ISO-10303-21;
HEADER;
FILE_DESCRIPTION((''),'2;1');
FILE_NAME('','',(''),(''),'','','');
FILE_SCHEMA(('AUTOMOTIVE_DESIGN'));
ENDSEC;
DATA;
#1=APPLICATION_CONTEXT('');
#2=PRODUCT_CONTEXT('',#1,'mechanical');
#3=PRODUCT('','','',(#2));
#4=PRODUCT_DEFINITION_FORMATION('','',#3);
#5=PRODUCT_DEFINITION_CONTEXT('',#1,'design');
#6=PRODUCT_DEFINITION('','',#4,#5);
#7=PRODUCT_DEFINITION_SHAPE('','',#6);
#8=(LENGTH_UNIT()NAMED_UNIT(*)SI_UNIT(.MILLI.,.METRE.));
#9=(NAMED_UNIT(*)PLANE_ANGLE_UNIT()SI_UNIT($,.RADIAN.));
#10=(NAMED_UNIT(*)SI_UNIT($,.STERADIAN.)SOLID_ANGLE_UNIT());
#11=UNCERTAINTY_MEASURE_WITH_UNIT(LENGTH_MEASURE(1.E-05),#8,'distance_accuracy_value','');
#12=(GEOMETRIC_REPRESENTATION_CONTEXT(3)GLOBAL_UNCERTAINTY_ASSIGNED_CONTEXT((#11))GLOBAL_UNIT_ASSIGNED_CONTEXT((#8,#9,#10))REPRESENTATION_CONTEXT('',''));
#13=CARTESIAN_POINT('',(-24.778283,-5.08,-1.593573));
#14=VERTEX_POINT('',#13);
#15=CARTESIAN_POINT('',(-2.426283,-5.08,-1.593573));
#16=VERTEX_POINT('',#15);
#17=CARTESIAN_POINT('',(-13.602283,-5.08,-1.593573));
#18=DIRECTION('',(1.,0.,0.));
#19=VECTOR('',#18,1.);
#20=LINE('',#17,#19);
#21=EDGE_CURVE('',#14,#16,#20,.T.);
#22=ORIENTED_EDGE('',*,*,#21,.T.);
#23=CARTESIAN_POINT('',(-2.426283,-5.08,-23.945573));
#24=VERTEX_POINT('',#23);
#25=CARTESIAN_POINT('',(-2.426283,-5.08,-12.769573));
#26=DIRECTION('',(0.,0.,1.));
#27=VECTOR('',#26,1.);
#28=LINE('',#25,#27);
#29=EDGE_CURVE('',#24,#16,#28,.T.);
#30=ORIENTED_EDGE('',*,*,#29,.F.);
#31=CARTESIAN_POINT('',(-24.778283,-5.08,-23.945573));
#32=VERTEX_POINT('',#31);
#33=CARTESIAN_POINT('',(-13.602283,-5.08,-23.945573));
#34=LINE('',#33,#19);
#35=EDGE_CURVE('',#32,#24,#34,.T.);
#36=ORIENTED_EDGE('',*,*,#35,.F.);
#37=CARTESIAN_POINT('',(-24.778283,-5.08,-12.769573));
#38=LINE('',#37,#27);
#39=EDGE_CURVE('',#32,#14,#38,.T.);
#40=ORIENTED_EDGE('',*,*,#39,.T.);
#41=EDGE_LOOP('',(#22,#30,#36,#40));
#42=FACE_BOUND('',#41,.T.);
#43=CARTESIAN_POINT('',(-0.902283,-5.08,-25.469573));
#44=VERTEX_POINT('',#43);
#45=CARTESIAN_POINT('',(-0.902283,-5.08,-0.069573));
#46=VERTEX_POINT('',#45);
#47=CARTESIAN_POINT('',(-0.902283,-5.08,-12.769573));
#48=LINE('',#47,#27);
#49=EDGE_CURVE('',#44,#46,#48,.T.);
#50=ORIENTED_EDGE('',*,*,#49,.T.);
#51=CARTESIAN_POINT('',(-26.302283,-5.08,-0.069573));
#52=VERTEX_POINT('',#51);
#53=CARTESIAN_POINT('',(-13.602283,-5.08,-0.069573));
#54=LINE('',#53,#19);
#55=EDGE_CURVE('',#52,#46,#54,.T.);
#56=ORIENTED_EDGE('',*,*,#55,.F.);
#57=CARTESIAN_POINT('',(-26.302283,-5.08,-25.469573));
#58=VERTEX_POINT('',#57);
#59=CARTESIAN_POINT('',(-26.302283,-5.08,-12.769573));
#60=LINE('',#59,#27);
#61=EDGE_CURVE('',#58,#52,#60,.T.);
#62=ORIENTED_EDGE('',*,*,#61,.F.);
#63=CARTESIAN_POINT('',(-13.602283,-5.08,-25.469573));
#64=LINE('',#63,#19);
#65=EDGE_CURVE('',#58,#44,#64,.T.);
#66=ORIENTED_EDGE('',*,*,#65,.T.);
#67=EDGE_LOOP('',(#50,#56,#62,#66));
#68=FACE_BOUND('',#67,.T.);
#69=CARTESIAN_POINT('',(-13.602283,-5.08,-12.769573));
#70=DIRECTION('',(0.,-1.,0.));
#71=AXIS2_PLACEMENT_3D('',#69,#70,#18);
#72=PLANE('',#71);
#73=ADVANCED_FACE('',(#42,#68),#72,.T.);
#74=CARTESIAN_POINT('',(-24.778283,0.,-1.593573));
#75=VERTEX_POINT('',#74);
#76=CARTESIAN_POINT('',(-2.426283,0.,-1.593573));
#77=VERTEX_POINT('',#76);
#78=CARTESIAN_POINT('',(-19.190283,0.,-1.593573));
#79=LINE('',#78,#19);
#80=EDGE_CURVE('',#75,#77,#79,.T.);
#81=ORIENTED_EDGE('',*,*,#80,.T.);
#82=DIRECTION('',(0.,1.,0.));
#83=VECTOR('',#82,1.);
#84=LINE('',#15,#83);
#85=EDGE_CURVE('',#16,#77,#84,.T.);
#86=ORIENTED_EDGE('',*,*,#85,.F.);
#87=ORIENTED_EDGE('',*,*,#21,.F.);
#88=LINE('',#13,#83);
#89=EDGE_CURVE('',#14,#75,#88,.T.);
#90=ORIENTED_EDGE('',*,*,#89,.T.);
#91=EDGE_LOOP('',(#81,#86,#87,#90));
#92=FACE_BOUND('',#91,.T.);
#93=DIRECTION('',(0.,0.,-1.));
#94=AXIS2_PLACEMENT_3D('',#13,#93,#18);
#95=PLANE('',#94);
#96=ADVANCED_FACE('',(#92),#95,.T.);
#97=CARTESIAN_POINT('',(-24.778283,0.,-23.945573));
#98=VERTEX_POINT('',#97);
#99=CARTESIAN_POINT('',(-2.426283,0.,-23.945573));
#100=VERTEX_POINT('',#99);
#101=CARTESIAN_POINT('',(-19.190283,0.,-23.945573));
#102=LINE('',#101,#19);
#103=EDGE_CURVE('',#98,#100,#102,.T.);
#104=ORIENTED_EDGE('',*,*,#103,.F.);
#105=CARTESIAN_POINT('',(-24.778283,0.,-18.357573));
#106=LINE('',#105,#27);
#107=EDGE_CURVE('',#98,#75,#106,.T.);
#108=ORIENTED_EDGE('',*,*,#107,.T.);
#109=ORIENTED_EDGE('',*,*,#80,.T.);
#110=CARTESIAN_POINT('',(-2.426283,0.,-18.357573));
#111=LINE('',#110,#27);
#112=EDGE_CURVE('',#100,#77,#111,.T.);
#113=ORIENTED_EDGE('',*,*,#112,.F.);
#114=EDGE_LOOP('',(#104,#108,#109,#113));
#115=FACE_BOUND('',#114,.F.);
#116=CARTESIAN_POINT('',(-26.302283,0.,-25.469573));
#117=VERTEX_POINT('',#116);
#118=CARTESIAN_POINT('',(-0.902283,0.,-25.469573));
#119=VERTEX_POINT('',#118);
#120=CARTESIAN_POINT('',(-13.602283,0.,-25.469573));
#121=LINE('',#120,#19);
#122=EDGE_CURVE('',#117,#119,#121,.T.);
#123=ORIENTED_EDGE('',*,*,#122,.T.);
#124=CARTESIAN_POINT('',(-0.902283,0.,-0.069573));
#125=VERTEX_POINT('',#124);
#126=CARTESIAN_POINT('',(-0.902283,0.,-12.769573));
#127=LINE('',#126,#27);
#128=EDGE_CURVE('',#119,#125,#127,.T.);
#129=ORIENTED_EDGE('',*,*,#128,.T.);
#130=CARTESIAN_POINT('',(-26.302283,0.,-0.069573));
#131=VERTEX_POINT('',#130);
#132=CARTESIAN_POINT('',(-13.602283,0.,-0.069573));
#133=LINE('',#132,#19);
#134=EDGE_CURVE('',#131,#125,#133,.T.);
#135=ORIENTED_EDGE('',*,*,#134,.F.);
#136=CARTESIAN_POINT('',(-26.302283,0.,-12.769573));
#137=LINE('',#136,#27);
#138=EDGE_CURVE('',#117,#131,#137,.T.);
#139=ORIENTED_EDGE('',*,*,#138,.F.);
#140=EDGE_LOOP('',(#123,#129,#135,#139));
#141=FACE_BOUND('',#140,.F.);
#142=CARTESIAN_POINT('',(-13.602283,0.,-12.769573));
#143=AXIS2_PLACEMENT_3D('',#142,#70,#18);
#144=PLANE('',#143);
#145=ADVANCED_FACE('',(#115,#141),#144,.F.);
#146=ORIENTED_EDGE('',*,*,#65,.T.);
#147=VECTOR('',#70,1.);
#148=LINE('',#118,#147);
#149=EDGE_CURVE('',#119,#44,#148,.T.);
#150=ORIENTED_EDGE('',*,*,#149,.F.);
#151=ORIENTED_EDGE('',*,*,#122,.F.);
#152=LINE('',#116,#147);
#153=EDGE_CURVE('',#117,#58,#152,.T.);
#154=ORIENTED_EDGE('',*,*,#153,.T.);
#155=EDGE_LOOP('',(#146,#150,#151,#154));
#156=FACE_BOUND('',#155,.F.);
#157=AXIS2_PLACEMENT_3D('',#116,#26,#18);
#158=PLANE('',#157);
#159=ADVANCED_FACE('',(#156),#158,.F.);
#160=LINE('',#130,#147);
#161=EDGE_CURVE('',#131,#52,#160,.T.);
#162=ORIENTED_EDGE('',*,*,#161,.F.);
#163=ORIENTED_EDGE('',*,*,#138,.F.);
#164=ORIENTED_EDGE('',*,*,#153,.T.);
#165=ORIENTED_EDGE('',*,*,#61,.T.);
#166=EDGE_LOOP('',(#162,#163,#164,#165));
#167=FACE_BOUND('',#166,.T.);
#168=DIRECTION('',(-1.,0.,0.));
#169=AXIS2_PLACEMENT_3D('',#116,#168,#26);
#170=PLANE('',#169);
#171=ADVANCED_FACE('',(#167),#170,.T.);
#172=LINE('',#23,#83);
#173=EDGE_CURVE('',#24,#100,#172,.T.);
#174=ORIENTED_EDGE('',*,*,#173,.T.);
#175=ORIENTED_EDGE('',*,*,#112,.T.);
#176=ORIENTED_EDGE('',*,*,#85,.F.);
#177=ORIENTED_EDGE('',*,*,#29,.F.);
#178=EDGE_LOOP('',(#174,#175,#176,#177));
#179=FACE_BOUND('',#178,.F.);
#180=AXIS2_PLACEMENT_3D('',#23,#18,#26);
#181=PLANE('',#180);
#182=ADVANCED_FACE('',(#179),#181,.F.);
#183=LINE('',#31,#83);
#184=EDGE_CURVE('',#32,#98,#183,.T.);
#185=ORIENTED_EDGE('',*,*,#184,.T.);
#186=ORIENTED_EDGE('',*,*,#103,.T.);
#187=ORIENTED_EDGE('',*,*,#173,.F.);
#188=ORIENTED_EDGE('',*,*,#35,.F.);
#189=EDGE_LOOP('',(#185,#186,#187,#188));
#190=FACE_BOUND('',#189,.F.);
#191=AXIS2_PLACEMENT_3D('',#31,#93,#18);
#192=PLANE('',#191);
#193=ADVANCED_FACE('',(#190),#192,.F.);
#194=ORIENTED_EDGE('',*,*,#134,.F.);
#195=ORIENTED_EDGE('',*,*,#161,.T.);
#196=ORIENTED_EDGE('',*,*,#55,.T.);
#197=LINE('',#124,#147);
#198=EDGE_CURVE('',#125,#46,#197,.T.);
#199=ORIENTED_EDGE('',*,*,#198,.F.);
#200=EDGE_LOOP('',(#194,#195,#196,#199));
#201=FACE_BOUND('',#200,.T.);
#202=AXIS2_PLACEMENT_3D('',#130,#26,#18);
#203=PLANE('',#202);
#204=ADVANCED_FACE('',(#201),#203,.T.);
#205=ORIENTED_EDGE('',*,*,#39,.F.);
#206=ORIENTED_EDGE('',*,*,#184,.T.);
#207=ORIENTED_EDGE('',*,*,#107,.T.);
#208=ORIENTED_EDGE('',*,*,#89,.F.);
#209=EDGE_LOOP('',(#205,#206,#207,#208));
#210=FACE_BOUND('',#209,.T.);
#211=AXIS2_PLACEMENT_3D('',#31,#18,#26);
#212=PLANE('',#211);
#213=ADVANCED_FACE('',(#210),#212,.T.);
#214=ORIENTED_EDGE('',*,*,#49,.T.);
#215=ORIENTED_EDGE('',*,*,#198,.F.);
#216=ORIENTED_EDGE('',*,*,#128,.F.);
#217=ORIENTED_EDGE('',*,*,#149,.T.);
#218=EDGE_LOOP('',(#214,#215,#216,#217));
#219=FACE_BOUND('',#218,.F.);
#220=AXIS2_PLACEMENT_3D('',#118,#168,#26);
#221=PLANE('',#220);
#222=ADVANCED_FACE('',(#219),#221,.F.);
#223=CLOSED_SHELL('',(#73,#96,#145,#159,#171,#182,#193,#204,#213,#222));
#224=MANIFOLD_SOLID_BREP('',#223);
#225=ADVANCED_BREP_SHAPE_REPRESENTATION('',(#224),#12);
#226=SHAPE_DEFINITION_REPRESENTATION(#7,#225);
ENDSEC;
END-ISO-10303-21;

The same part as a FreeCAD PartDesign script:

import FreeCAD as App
import Part
import Sketcher

V = App.Vector
Q = App.Units.Quantity

doc = App.newDocument("Part")
params = doc.addObject("Spreadsheet::Sheet", "Params")
for row, (alias, value) in enumerate([
    ("sketch1_width", "1 in"),
    ("pad1_length", "0.2 in"),
    ("sketch2_width", "0.88 in"),
    ("pocket1_length", "1 in"),
    ("pocket2_length", "1 in"),
], start=1):
    params.set(f"A{row}", alias)
    params.set(f"B{row}", "=" + value)
    params.setAlias(f"B{row}", alias)

body = doc.addObject("PartDesign::Body", "Body")

# Sketch on XZ plane
sketch1 = body.newObject("Sketcher::SketchObject", "Sketch")
sketch1.AttachmentSupport = (doc.getObject("XZ_Plane"), [""])
sketch1.MapMode = "FlatFace"
sketch1.addGeometry([
    Part.LineSegment(V(-26, 0, 0), V(-26, -25, 0)),
    Part.LineSegment(V(-26, -25, 0), V(-1, -25, 0)),
    Part.LineSegment(V(-1, -25, 0), V(-1, 0, 0)),
    Part.LineSegment(V(-1, 0, 0), V(-26, 0, 0)),
], False)
sketch1.addConstraint([
    Sketcher.Constraint("Coincident", 0, 2, 1, 1),
    Sketcher.Constraint("Coincident", 1, 2, 2, 1),
    Sketcher.Constraint("Coincident", 2, 2, 3, 1),
    Sketcher.Constraint("Coincident", 3, 2, 0, 1),
    Sketcher.Constraint("Vertical", 0),
    Sketcher.Constraint("Horizontal", 1),
    Sketcher.Constraint("Vertical", 2),
    Sketcher.Constraint("Horizontal", 3),
    Sketcher.Constraint("Equal", 3, 0),
    Sketcher.Constraint("DistanceX", 1, 1, 1, 2, Q("1 in")),
    Sketcher.Constraint("DistanceX", 0, 2, -1, 1, 26.302283),
    Sketcher.Constraint("DistanceY", 0, 2, -1, 1, 25.469573),
])
sketch1.setExpression("Constraints[9]", "Params.sketch1_width")
pad1 = body.newObject("PartDesign::Pad", "Pad")
pad1.Profile = sketch1
pad1.setExpression("Length", "Params.pad1_length")

# Sketch on XZ plane
sketch2 = body.newObject("Sketcher::SketchObject", "Sketch001")
sketch2.AttachmentSupport = (doc.getObject("XZ_Plane"), [""])
sketch2.MapMode = "FlatFace"
sketch2.AttachmentOffset = App.Placement(V(0, 0, 0.2 * 25.4), App.Rotation())
sketch2.addGeometry([
    Part.LineSegment(V(-25, -2, 0), V(-25, -24, 0)),
    Part.LineSegment(V(-25, -24, 0), V(-2, -24, 0)),
    Part.LineSegment(V(-2, -24, 0), V(-2, -2, 0)),
    Part.LineSegment(V(-2, -2, 0), V(-25, -2, 0)),
], False)
sketch2.addConstraint([
    Sketcher.Constraint("Coincident", 0, 2, 1, 1),
    Sketcher.Constraint("Coincident", 1, 2, 2, 1),
    Sketcher.Constraint("Coincident", 2, 2, 3, 1),
    Sketcher.Constraint("Coincident", 3, 2, 0, 1),
    Sketcher.Constraint("Vertical", 0),
    Sketcher.Constraint("Horizontal", 1),
    Sketcher.Constraint("Vertical", 2),
    Sketcher.Constraint("Horizontal", 3),
    Sketcher.Constraint("Equal", 3, 0),
    Sketcher.Constraint("DistanceX", 1, 1, 1, 2, Q("0.88 in")),
    Sketcher.Constraint("DistanceX", 0, 2, -1, 1, 24.778283),
    Sketcher.Constraint("DistanceY", 0, 2, -1, 1, 23.945573),
])
sketch2.setExpression("Constraints[9]", "Params.sketch2_width")
pocket1 = body.newObject("PartDesign::Pocket", "Pocket")
pocket1.Profile = sketch2
pocket1.setExpression("Length", "Params.pocket1_length")
pocket2 = body.newObject("PartDesign::Pocket", "Pocket001")
pocket2.Profile = sketch2
pocket2.setExpression("Length", "Params.pocket2_length")

doc.recompute()
